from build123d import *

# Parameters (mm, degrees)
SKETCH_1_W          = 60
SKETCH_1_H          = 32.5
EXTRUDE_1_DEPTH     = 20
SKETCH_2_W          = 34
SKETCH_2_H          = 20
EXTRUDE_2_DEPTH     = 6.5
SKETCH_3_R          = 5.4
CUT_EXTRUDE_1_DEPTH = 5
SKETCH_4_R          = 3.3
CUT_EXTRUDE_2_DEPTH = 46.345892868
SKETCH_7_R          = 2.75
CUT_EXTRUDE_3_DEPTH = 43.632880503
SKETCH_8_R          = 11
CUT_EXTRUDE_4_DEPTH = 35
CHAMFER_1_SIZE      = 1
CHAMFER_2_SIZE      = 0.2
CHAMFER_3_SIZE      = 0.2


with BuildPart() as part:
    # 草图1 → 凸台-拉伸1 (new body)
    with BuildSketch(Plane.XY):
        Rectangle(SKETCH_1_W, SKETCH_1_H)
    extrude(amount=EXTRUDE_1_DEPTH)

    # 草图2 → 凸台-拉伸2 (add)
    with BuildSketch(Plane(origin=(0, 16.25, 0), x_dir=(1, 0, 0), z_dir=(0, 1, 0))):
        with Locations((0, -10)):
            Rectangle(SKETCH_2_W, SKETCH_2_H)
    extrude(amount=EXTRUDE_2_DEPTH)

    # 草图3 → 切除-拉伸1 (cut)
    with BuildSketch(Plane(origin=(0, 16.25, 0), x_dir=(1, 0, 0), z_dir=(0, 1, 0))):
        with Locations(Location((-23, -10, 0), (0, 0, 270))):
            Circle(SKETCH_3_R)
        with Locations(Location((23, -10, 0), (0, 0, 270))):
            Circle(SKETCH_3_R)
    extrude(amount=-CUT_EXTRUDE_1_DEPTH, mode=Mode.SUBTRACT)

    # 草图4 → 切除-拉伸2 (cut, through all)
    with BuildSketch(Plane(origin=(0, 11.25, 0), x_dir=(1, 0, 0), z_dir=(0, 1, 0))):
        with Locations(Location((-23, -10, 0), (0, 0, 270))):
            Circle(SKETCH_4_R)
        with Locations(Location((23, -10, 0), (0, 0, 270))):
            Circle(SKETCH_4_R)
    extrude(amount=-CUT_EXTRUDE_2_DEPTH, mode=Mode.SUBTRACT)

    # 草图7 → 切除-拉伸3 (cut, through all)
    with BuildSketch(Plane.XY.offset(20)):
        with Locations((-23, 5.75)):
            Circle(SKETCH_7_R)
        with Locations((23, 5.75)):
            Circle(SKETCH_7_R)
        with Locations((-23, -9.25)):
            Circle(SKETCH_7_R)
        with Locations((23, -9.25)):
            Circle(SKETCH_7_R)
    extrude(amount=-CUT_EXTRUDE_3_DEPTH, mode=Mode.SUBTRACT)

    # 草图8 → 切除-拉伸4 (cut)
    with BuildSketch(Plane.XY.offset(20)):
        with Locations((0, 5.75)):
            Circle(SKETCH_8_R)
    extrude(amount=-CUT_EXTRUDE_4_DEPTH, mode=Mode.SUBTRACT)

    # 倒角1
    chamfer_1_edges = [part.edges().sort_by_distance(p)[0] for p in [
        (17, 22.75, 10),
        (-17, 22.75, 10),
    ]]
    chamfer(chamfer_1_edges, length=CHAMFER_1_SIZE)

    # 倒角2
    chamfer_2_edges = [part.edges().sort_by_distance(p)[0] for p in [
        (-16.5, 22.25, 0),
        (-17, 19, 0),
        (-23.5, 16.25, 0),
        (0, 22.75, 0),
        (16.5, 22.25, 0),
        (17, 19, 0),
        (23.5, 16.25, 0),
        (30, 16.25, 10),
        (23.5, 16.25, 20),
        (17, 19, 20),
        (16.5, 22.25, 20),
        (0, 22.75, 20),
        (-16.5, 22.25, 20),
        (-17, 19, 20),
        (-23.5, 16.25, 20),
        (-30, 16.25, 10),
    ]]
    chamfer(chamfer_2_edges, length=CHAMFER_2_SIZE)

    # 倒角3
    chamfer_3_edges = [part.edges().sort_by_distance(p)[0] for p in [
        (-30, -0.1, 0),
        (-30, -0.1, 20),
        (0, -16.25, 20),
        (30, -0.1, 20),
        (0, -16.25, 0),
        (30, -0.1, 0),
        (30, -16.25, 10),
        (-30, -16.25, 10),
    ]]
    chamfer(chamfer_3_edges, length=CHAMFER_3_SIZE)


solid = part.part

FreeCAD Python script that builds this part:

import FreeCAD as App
import Part
import Sketcher
from FreeCAD import Vector
Q = App.Units.Quantity


def edges_at(feature, points):
    """Names of the edges that pass closest to the given points."""
    edges = feature.Shape.Edges
    near = lambda p: min(range(len(edges)), key=lambda i: edges[i].distToShape(Part.Vertex(*p))[0])
    return sorted({f"Edge{near(p) + 1}" for p in points})

doc = App.newDocument("Part")
body = doc.addObject("PartDesign::Body", "Body")

# Sketch on XY plane
sketch1 = body.newObject("Sketcher::SketchObject", "Sketch")
sketch1.AttachmentSupport = (doc.getObject("XY_Plane"), [""])
sketch1.MapMode = "FlatFace"
sketch1.addGeometry(Part.LineSegment(Vector(-30, 16, 0), Vector(-30, -16, 0)), False)
sketch1.addGeometry(Part.LineSegment(Vector(-30, -16, 0), Vector(30, -16, 0)), False)
sketch1.addGeometry(Part.LineSegment(Vector(30, -16, 0), Vector(30, 16, 0)), False)
sketch1.addGeometry(Part.LineSegment(Vector(30, 16, 0), Vector(-30, 16, 0)), False)
sketch1.addConstraint(Sketcher.Constraint("Coincident", 0, 2, 1, 1))
sketch1.addConstraint(Sketcher.Constraint("Coincident", 1, 2, 2, 1))
sketch1.addConstraint(Sketcher.Constraint("Coincident", 2, 2, 3, 1))
sketch1.addConstraint(Sketcher.Constraint("Coincident", 3, 2, 0, 1))
sketch1.addConstraint(Sketcher.Constraint("Vertical", 0))
sketch1.addConstraint(Sketcher.Constraint("Horizontal", 1))
sketch1.addConstraint(Sketcher.Constraint("Vertical", 2))
sketch1.addConstraint(Sketcher.Constraint("Horizontal", 3))
sketch1.addConstraint(Sketcher.Constraint("Symmetric", 0, 2, 2, 2, -1, 1))
sketch1.addConstraint(Sketcher.Constraint("DistanceX", 1, 1, 1, 2, Q("60 mm")))
sketch1.addConstraint(Sketcher.Constraint("DistanceY", 0, 2, 0, 1, Q("32.5 mm")))
pad1 = body.newObject("PartDesign::Pad", "Pad")
pad1.Profile = sketch1
pad1.Length = 20

# Sketch on XZ plane
sketch2 = body.newObject("Sketcher::SketchObject", "Sketch001")
sketch2.AttachmentSupport = (doc.getObject("XZ_Plane"), [""])
sketch2.MapMode = "FlatFace"
sketch2.AttachmentOffset = App.Placement(Vector(0, 0, -16.25), App.Rotation())
sketch2.addGeometry(Part.LineSegment(Vector(-17, 0, 0), Vector(-17, 20, 0)), False)
sketch2.addGeometry(Part.LineSegment(Vector(-17, 20, 0), Vector(17, 20, 0)), False)
sketch2.addGeometry(Part.LineSegment(Vector(17, 20, 0), Vector(17, 0, 0)), False)
sketch2.addGeometry(Part.LineSegment(Vector(17, 0, 0), Vector(-17, 0, 0)), False)
sketch2.addConstraint(Sketcher.Constraint("Coincident", 0, 2, 1, 1))
sketch2.addConstraint(Sketcher.Constraint("Coincident", 1, 2, 2, 1))
sketch2.addConstraint(Sketcher.Constraint("Coincident", 2, 2, 3, 1))
sketch2.addConstraint(Sketcher.Constraint("Coincident", 3, 2, 0, 1))
sketch2.addConstraint(Sketcher.Constraint("Vertical", 0))
sketch2.addConstraint(Sketcher.Constraint("Horizontal", 1))
sketch2.addConstraint(Sketcher.Constraint("Vertical", 2))
sketch2.addConstraint(Sketcher.Constraint("Horizontal", 3))
sketch2.addConstraint(Sketcher.Constraint("Symmetric", 2, 2, 3, 2, -1, 1))
sketch2.addConstraint(Sketcher.Constraint("DistanceX", 1, 1, 1, 2, Q("34 mm")))
sketch2.addConstraint(Sketcher.Constraint("DistanceY", 0, 1, 0, 2, Q("20 mm")))
pad2 = body.newObject("PartDesign::Pad", "Pad001")
pad2.Profile = sketch2
pad2.Length = 6.5
pad2.Reversed = True

# Sketch on XZ plane
sketch3 = body.newObject("Sketcher::SketchObject", "Sketch002")
sketch3.AttachmentSupport = (doc.getObject("XZ_Plane"), [""])
sketch3.MapMode = "FlatFace"
sketch3.AttachmentOffset = App.Placement(Vector(0, 0, -16.25), App.Rotation())
sketch3.addGeometry(Part.Circle(Vector(-23, 10, 0), Vector(0, 0, 1), 5), False)
sketch3.addGeometry(Part.Circle(Vector(23, 10, 0), Vector(0, 0, 1), 5), False)
sketch3.addConstraint(Sketcher.Constraint("Equal", 0, 1))
sketch3.addConstraint(Sketcher.Constraint("Symmetric", 0, 3, 1, 3, -2))
sketch3.addConstraint(Sketcher.Constraint("Diameter", 0, Q("10.8 mm")))
sketch3.addConstraint(Sketcher.Constraint("DistanceX", 0, 3, -1, 1, Q("23 mm")))
sketch3.addConstraint(Sketcher.Constraint("DistanceY", -1, 1, 0, 3, Q("10 mm")))
pocket1 = body.newObject("PartDesign::Pocket", "Pocket")
pocket1.Profile = sketch3
pocket1.Length = 5
pocket1.Reversed = True

# Sketch on XZ plane
sketch4 = body.newObject("Sketcher::SketchObject", "Sketch003")
sketch4.AttachmentSupport = (doc.getObject("XZ_Plane"), [""])
sketch4.MapMode = "FlatFace"
sketch4.AttachmentOffset = App.Placement(Vector(0, 0, -11.25), App.Rotation())
sketch4.addGeometry(Part.Circle(Vector(-23, 10, 0), Vector(0, 0, 1), 3.3), False)
sketch4.addGeometry(Part.Circle(Vector(23, 10, 0), Vector(0, 0, 1), 3.3), False)
sketch4.addConstraint(Sketcher.Constraint("Equal", 0, 1))
sketch4.addConstraint(Sketcher.Constraint("Symmetric", 0, 3, 1, 3, -2))
sketch4.addConstraint(Sketcher.Constraint("Diameter", 0, Q("6.6 mm")))
sketch4.addConstraint(Sketcher.Constraint("DistanceX", 0, 3, -1, 1, Q("23 mm")))
sketch4.addConstraint(Sketcher.Constraint("DistanceY", -1, 1, 0, 3, Q("10 mm")))
pocket2 = body.newObject("PartDesign::Pocket", "Pocket001")
pocket2.Profile = sketch4
pocket2.Type = "ThroughAll"
pocket2.Reversed = True

# Sketch on XY plane
sketch5 = body.newObject("Sketcher::SketchObject", "Sketch004")
sketch5.AttachmentSupport = (doc.getObject("XY_Plane"), [""])
sketch5.MapMode = "FlatFace"
sketch5.AttachmentOffset = App.Placement(Vector(0, 0, 20), App.Rotation())
sketch5.addGeometry(Part.Circle(Vector(-23, 5.8, 0), Vector(0, 0, 1), 2.8), False)
sketch5.addGeometry(Part.Circle(Vector(23, 5.8, 0), Vector(0, 0, 1), 2.8), False)
sketch5.addGeometry(Part.Circle(Vector(-23, -9.2, 0), Vector(0, 0, 1), 2.8), False)
sketch5.addGeometry(Part.Circle(Vector(23, -9.2, 0), Vector(0, 0, 1), 2.8), False)
sketch5.addConstraint(Sketcher.Constraint("Equal", 0, 1))
sketch5.addConstraint(Sketcher.Constraint("Equal", 1, 2))
sketch5.addConstraint(Sketcher.Constraint("Equal", 2, 3))
sketch5.addConstraint(Sketcher.Constraint("Symmetric", 0, 3, 1, 3, -2))
sketch5.addConstraint(Sketcher.Constraint("Symmetric", 2, 3, 3, 3, -2))
sketch5.addConstraint(Sketcher.Constraint("Vertical", 0, 3, 2, 3))
sketch5.addConstraint(Sketcher.Constraint("Diameter", 0, Q("5.5 mm")))
sketch5.addConstraint(Sketcher.Constraint("DistanceX", 0, 3, -1, 1, Q("23 mm")))
sketch5.addConstraint(Sketcher.Constraint("DistanceY", 2, 3, 0, 3, Q("15 mm")))
sketch5.addConstraint(Sketcher.Constraint("DistanceY", -1, 1, 0, 3, Q("5.75 mm")))
pocket3 = body.newObject("PartDesign::Pocket", "Pocket002")
pocket3.Profile = sketch5
pocket3.Type = "ThroughAll"

# Sketch on XY plane
sketch6 = body.newObject("Sketcher::SketchObject", "Sketch005")
sketch6.AttachmentSupport = (doc.getObject("XY_Plane"), [""])
sketch6.MapMode = "FlatFace"
sketch6.AttachmentOffset = App.Placement(Vector(0, 0, 20), App.Rotation())
sketch6.addGeometry(Part.Circle(Vector(0, 6, 0), Vector(0, 0, 1), 11), False)
sketch6.addConstraint(Sketcher.Constraint("PointOnObject", 0, 3, -2))
sketch6.addConstraint(Sketcher.Constraint("Diameter", 0, Q("22 mm")))
sketch6.addConstraint(Sketcher.Constraint("DistanceY", -1, 1, 0, 3, Q("5.75 mm")))
pocket4 = body.newObject("PartDesign::Pocket", "Pocket003")
pocket4.Profile = sketch6
pocket4.Length = 35
doc.recompute()

chamfer = body.newObject("PartDesign::Chamfer", "Chamfer")
chamfer.Base = (pocket4, edges_at(pocket4, [(17, 22.75, 10), (-17, 22.75, 10)]))
chamfer.Size = 1
doc.recompute()

chamfer2 = body.newObject("PartDesign::Chamfer", "Chamfer001")
chamfer2.Base = (chamfer, edges_at(chamfer, [
    (-16.5, 22.25, 0),
    (-17, 19, 0),
    (-23.5, 16.25, 0),
    (0, 22.75, 0),
    (16.5, 22.25, 0),
    (17, 19, 0),
    (23.5, 16.25, 0),
    (30, 16.25, 10),
    (23.5, 16.25, 20),
    (17, 19, 20),
    (16.5, 22.25, 20),
    (0, 22.75, 20),
    (-16.5, 22.25, 20),
    (-17, 19, 20),
    (-23.5, 16.25, 20),
    (-30, 16.25, 10),
]))
chamfer2.Size = 0.2
doc.recompute()

chamfer3 = body.newObject("PartDesign::Chamfer", "Chamfer002")
chamfer3.Base = (chamfer2, edges_at(chamfer2, [
    (-30, -0.1, 0),
    (-30, -0.1, 20),
    (0, -16.25, 20),
    (30, -0.1, 20),
    (0, -16.25, 0),
    (30, -0.1, 0),
    (30, -16.25, 10),
    (-30, -16.25, 10),
]))
chamfer3.Size = 0.2

doc.recompute()
